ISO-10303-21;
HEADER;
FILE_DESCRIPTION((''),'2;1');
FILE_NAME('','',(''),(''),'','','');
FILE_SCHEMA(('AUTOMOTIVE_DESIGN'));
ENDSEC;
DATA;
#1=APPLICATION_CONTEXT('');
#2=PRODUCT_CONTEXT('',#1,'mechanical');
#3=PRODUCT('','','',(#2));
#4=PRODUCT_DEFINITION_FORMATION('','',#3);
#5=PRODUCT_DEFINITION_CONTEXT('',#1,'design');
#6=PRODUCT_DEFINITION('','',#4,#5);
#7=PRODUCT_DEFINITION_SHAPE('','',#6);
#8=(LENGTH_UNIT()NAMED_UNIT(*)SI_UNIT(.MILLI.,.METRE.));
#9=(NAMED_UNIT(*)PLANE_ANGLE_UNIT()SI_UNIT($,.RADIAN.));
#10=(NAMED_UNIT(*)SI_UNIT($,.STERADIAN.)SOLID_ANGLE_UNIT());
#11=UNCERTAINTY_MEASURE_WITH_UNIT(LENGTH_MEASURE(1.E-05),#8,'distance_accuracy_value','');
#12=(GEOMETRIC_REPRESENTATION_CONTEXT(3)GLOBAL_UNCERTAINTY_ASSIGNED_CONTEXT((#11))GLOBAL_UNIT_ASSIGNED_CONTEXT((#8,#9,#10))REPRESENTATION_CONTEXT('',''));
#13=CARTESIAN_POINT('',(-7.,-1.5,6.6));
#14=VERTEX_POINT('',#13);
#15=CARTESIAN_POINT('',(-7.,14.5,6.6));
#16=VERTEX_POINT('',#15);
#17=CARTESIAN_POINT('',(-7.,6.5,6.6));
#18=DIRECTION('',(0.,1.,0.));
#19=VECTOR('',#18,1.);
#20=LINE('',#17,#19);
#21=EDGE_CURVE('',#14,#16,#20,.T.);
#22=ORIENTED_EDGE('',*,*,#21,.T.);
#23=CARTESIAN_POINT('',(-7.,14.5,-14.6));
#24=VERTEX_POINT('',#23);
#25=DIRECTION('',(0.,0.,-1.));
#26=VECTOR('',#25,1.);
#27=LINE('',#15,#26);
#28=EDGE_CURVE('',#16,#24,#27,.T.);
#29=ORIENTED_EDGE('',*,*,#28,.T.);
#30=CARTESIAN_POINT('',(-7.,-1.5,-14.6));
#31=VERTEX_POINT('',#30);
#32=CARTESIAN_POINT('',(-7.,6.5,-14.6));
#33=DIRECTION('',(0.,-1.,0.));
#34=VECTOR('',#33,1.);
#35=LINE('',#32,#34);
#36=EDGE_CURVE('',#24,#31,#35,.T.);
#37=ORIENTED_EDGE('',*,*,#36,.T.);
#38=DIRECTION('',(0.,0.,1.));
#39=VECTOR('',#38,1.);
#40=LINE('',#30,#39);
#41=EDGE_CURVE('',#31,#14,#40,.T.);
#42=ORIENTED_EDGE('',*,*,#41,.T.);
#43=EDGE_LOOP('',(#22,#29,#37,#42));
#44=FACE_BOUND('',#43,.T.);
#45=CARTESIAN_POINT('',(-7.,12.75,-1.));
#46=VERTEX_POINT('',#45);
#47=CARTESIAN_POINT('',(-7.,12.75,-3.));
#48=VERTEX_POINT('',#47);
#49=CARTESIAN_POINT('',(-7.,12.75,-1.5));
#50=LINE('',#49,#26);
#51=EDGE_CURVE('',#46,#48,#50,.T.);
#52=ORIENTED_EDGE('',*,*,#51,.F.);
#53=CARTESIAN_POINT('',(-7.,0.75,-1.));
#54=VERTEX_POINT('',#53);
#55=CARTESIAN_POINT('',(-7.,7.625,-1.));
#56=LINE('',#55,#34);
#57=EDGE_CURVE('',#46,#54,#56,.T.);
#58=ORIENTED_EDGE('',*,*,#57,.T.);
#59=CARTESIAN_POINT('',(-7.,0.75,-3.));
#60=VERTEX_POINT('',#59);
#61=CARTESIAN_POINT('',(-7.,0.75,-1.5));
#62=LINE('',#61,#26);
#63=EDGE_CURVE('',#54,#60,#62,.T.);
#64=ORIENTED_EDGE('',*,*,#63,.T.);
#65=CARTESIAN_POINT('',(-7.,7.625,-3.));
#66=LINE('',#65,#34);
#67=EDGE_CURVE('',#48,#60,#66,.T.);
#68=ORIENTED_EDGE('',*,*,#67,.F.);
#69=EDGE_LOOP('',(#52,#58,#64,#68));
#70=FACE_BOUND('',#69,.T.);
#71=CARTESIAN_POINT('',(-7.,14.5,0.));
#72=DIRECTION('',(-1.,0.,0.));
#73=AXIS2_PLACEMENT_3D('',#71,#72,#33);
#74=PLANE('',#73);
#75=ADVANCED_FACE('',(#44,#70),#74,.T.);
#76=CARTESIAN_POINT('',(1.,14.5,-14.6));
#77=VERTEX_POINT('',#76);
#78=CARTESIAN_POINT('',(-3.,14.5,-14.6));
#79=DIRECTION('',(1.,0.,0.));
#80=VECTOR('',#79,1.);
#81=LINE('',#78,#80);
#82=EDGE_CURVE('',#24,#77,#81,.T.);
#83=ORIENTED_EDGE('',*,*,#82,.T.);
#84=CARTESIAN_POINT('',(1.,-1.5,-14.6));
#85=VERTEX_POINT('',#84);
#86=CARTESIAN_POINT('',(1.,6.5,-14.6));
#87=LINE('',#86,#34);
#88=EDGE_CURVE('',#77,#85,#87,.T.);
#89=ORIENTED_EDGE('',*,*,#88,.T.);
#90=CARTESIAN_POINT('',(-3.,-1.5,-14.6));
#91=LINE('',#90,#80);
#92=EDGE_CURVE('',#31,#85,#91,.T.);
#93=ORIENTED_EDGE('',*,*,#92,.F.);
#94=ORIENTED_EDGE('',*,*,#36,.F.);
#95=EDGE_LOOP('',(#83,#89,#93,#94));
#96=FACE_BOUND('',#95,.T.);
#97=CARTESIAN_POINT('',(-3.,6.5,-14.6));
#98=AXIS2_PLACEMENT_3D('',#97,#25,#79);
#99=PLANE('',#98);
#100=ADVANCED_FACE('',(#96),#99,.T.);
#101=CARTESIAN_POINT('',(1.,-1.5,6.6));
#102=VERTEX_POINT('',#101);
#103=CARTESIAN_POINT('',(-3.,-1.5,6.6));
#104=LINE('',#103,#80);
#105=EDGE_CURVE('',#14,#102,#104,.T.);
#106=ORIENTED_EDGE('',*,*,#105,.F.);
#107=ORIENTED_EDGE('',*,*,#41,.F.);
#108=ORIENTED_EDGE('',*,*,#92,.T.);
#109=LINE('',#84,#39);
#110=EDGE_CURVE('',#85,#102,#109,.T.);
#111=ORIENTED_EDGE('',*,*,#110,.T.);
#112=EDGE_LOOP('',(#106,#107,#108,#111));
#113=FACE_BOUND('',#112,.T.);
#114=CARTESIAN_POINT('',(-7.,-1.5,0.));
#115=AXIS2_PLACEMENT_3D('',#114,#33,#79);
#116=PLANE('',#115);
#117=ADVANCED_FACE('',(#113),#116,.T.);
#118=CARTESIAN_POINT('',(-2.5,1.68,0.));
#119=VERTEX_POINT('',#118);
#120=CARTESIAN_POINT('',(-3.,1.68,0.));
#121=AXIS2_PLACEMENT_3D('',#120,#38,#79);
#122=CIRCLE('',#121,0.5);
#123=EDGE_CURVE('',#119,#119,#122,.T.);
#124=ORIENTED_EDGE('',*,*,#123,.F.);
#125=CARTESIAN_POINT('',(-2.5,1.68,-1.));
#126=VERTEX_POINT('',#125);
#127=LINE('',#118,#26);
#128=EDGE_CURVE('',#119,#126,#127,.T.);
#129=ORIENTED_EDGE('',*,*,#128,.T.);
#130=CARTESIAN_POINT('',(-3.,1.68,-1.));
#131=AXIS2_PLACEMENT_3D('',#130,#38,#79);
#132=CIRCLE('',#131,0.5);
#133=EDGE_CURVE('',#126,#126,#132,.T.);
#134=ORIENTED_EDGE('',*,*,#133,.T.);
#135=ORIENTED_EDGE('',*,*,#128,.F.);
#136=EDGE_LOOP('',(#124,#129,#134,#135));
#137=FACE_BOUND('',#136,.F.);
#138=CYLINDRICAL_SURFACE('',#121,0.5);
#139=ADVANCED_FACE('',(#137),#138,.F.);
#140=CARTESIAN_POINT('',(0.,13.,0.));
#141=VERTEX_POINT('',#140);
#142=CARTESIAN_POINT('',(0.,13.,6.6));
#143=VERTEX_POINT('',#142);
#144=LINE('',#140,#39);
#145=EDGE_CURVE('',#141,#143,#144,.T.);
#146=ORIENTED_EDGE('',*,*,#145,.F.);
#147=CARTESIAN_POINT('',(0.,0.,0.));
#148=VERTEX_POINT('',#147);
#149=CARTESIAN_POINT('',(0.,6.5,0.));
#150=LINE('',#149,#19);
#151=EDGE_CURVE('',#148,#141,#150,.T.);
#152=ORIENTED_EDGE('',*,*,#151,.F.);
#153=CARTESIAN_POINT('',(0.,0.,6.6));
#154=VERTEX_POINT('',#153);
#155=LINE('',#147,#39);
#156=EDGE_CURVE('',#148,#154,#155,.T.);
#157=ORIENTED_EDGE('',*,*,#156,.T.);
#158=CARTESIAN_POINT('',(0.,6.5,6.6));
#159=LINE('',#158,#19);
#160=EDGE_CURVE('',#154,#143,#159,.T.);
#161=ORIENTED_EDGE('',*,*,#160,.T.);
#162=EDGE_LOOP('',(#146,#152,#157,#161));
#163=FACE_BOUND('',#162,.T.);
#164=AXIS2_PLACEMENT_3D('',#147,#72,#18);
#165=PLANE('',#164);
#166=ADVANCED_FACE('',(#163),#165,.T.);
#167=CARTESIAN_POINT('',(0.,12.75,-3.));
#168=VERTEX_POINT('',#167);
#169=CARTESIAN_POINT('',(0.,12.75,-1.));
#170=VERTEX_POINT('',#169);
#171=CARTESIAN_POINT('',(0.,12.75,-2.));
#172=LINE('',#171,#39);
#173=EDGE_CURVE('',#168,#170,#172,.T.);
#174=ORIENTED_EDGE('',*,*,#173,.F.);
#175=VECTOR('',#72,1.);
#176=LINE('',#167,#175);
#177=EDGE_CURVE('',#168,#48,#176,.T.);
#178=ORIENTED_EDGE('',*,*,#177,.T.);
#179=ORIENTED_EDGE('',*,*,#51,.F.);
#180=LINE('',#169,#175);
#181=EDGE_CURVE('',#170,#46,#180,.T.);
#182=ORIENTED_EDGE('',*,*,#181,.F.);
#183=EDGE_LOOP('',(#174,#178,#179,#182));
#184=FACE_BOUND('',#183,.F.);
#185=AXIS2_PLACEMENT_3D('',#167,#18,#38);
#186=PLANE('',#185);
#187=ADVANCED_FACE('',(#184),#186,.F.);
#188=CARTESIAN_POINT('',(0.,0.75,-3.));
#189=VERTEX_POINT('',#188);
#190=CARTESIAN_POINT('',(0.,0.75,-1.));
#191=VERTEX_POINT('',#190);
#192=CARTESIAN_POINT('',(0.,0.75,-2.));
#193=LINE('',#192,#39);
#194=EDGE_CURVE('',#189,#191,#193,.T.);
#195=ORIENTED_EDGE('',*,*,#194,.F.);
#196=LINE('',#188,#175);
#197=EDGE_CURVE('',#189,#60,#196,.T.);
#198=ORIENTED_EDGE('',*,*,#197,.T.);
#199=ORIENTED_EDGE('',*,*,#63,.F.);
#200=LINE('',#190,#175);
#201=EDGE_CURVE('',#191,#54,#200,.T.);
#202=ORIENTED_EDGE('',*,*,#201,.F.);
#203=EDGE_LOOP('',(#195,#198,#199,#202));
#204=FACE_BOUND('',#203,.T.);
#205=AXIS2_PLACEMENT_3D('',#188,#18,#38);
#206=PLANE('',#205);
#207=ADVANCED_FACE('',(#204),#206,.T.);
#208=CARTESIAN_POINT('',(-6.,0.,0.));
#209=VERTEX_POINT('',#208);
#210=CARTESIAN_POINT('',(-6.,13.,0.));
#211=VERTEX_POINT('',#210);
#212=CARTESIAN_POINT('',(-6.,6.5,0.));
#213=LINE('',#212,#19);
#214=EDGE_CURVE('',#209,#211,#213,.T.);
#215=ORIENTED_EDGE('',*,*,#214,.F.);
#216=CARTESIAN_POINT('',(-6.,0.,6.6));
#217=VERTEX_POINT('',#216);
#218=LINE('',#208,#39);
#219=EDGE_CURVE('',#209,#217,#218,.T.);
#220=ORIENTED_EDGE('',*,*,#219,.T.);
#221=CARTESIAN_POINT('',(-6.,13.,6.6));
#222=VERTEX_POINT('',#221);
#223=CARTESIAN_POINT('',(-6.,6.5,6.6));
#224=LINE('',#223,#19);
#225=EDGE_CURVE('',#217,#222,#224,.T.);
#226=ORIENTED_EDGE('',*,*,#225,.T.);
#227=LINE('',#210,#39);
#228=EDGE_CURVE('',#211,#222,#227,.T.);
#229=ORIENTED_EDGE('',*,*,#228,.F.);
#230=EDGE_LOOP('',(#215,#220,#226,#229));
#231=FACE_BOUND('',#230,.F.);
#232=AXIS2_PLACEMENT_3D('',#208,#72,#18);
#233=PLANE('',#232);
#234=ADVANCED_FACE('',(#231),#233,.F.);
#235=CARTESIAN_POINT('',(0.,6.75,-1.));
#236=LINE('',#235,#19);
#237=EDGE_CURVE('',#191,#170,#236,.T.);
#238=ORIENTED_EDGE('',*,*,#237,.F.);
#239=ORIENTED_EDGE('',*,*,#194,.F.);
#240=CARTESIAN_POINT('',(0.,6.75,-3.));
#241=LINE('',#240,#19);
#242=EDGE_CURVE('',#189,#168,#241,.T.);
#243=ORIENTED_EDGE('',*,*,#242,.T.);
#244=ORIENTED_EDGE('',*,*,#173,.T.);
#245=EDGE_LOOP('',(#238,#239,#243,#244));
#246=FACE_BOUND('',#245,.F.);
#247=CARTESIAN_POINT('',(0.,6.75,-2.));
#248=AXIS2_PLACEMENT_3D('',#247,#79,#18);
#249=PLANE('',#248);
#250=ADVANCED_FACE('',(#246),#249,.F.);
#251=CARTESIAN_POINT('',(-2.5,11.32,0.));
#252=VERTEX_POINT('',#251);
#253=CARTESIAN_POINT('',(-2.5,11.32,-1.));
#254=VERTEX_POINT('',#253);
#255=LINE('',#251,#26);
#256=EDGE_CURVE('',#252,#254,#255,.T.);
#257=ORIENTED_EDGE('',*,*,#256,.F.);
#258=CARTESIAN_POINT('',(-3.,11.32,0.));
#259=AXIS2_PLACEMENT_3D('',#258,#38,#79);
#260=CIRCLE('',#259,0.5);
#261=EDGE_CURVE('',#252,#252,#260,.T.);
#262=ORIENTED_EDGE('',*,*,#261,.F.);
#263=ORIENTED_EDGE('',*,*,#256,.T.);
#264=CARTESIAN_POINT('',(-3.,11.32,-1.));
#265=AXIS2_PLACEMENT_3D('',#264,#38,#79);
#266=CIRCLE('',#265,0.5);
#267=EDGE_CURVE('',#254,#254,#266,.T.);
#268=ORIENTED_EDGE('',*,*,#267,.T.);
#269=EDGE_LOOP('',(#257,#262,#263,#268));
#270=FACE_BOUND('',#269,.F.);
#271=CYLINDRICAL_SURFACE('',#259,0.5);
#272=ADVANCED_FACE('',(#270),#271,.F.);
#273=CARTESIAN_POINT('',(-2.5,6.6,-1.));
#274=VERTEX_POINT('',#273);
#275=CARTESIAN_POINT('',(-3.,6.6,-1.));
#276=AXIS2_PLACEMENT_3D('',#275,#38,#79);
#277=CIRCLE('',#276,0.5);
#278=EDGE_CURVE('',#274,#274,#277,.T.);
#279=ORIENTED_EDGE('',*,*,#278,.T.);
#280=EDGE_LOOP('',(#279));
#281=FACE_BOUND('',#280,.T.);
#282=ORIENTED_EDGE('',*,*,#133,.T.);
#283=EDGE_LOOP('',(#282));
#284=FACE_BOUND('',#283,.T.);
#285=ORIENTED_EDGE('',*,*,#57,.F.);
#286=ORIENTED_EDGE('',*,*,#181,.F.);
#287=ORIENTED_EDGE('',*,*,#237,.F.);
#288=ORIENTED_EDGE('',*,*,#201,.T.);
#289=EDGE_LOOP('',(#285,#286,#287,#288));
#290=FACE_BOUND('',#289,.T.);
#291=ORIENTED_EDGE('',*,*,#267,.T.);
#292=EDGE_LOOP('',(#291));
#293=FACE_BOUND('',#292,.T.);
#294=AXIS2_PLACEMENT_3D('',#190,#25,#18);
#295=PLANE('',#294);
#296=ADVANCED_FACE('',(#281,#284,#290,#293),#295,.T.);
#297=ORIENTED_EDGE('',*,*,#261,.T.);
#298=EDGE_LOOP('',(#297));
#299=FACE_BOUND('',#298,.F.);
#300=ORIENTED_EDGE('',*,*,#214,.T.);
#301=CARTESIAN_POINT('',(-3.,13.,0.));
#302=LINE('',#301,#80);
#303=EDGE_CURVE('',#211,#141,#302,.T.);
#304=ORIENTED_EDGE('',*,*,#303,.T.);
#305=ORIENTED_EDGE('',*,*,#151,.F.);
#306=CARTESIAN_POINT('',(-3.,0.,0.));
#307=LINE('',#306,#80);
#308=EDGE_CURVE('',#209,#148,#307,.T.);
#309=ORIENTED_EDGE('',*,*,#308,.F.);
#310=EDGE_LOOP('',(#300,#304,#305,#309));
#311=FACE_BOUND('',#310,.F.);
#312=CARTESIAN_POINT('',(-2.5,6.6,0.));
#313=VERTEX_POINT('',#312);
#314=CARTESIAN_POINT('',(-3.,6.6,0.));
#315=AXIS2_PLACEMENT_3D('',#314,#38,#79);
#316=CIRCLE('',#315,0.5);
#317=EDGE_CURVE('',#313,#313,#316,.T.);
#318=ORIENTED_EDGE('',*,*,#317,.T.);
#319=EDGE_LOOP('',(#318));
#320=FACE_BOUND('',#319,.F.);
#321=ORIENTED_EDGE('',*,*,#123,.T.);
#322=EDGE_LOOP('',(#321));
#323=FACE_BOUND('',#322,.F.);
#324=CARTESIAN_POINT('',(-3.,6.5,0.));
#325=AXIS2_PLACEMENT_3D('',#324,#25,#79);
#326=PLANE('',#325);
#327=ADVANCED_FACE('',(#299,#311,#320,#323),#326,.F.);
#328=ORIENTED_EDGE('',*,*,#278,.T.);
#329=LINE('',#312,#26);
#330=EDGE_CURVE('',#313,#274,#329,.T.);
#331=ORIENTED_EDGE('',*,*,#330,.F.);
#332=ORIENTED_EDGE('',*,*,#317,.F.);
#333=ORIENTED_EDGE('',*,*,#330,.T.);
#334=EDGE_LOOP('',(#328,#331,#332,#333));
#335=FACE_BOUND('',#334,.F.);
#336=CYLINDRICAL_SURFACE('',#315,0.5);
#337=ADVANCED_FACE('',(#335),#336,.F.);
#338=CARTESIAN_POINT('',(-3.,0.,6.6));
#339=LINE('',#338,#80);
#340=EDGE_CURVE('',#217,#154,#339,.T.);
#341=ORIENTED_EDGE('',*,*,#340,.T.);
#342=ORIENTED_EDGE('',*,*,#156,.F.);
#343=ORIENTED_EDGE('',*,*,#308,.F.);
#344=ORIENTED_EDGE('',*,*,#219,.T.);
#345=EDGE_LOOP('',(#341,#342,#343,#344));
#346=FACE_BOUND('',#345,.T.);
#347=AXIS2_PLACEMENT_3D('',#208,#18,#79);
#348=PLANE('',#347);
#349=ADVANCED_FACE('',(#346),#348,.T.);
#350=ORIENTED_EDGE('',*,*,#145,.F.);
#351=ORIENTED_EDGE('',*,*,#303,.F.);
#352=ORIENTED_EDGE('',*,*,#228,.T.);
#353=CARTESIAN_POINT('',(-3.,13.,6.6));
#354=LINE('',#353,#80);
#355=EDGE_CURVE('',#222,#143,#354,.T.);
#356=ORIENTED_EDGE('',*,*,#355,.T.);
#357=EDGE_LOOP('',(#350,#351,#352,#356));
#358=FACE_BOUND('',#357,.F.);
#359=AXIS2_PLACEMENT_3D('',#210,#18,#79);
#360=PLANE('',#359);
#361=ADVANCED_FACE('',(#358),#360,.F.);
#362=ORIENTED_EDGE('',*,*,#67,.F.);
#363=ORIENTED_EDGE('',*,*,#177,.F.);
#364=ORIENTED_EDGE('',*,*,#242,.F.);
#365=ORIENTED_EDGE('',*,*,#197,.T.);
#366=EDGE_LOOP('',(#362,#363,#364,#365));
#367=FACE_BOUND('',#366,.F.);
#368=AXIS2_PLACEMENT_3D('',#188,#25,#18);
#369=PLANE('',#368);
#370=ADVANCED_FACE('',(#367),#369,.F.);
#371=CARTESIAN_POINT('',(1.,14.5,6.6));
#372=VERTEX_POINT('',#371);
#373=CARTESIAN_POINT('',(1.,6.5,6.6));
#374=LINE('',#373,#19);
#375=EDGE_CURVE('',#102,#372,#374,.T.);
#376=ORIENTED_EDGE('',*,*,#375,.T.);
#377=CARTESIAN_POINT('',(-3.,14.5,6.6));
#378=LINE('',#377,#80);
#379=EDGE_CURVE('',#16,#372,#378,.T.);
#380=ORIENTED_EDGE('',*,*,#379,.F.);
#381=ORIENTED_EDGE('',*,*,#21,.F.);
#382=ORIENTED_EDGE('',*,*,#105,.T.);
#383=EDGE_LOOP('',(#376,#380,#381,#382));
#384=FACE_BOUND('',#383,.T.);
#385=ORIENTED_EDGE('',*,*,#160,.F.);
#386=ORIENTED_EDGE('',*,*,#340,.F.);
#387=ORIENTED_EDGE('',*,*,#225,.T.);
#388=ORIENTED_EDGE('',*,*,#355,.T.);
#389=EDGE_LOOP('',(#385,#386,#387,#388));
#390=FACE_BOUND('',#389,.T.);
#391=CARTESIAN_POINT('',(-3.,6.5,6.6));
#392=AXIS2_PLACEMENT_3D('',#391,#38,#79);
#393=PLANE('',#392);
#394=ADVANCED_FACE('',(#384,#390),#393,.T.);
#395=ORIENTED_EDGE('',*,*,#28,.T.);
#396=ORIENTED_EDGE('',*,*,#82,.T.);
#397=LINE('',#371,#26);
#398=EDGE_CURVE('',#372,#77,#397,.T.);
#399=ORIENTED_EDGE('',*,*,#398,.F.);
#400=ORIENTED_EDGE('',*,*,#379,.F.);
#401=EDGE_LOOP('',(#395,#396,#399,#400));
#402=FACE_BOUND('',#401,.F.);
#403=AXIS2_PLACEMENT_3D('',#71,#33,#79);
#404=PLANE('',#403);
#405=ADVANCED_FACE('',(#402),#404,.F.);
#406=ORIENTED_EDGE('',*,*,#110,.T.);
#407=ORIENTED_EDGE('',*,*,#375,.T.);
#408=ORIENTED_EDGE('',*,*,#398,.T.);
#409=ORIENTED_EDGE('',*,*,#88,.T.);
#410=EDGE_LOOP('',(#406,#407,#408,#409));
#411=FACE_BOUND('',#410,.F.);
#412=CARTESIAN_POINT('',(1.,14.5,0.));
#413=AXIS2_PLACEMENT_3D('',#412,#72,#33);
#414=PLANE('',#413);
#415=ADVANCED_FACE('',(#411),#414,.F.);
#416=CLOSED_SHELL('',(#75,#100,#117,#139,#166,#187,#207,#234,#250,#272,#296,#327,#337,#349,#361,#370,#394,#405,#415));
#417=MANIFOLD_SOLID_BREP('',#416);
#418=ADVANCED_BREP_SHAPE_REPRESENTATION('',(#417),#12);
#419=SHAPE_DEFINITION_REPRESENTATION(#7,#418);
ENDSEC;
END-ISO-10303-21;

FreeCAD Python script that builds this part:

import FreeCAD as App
import Part
import Sketcher

V = App.Vector
Q = App.Units.Quantity

doc = App.newDocument("Part")
body = doc.addObject("PartDesign::Body", "Body")

sketch1 = doc.addObject("Sketcher::SketchObject", "Sketch")
body.addObject(sketch1)
sketch1.AttachmentSupport = (doc.XY_Plane, [""])
sketch1.MapMode = "FlatFace"
sketch1.addGeometry([
    Part.LineSegment(V(-7, 14.5, 0), V(-7, -1.5, 0)),
    Part.LineSegment(V(-7, -1.5, 0), V(1, -1.5, 0)),
    Part.LineSegment(V(1, -1.5, 0), V(1, 14.5, 0)),
    Part.LineSegment(V(1, 14.5, 0), V(-7, 14.5, 0)),
    Part.LineSegment(V(0, 0, 0), V(-6, 0, 0)),
    Part.LineSegment(V(-6, 0, 0), V(-6, 13, 0)),
    Part.LineSegment(V(-6, 13, 0), V(0, 13, 0)),
    Part.LineSegment(V(0, 13, 0), V(0, 0, 0)),
], False)
sketch1.addConstraint([
    Sketcher.Constraint("Coincident", 0, 2, 1, 1),
    Sketcher.Constraint("Coincident", 1, 2, 2, 1),
    Sketcher.Constraint("Coincident", 2, 2, 3, 1),
    Sketcher.Constraint("Coincident", 3, 2, 0, 1),
    Sketcher.Constraint("Coincident", 4, 2, 5, 1),
    Sketcher.Constraint("Coincident", 5, 2, 6, 1),
    Sketcher.Constraint("Coincident", 6, 2, 7, 1),
    Sketcher.Constraint("Coincident", 7, 2, 4, 1),
    Sketcher.Constraint("Vertical", 0),
    Sketcher.Constraint("Horizontal", 1),
    Sketcher.Constraint("Vertical", 2),
    Sketcher.Constraint("Horizontal", 3),
    Sketcher.Constraint("Horizontal", 4),
    Sketcher.Constraint("Vertical", 5),
    Sketcher.Constraint("Horizontal", 6),
    Sketcher.Constraint("Vertical", 7),
    Sketcher.Constraint("Coincident", 7, 2, -1, 1),
    Sketcher.Constraint("DistanceX", 1, 1, 1, 2, Q("8 mm")),
    Sketcher.Constraint("DistanceX", 4, 2, 4, 1, Q("6 mm")),
    Sketcher.Constraint("DistanceY", 0, 2, 0, 1, Q("16 mm")),
    Sketcher.Constraint("DistanceY", 5, 1, 5, 2, Q("13 mm")),
    Sketcher.Constraint("DistanceX", 0, 2, -1, 1, Q("7 mm")),
    Sketcher.Constraint("DistanceY", 0, 2, -1, 1, Q("1.5 mm")),
])
pad1 = doc.addObject("PartDesign::Pad", "Pad")
body.addObject(pad1)
pad1.Profile = sketch1
pad1.Length = 6.6

sketch2 = doc.addObject("Sketcher::SketchObject", "Sketch001")
body.addObject(sketch2)
sketch2.AttachmentSupport = (doc.XY_Plane, [""])
sketch2.MapMode = "FlatFace"
sketch2.addGeometry([
    Part.LineSegment(V(-7, -1.5, 0), V(-7, 14.5, 0)),
    Part.LineSegment(V(-7, 14.5, 0), V(1, 14.5, 0)),
    Part.LineSegment(V(1, 14.5, 0), V(1, -1.5, 0)),
    Part.LineSegment(V(1, -1.5, 0), V(-7, -1.5, 0)),
], False)
sketch2.addConstraint([
    Sketcher.Constraint("Coincident", 0, 2, 1, 1),
    Sketcher.Constraint("Coincident", 1, 2, 2, 1),
    Sketcher.Constraint("Coincident", 2, 2, 3, 1),
    Sketcher.Constraint("Coincident", 3, 2, 0, 1),
    Sketcher.Constraint("Vertical", 0),
    Sketcher.Constraint("Horizontal", 1),
    Sketcher.Constraint("Vertical", 2),
    Sketcher.Constraint("Horizontal", 3),
    Sketcher.Constraint("DistanceX", 1, 1, 1, 2, Q("8 mm")),
    Sketcher.Constraint("DistanceY", 0, 1, 0, 2, Q("16 mm")),
    Sketcher.Constraint("DistanceX", 0, 2, -1, 1, Q("7 mm")),
    Sketcher.Constraint("DistanceY", -1, 1, 0, 2, Q("14.5 mm")),
])
pad2 = doc.addObject("PartDesign::Pad", "Pad001")
body.addObject(pad2)
pad2.Profile = sketch2
pad2.Length = 14.6
pad2.Reversed = True

sketch3 = doc.addObject("Sketcher::SketchObject", "Sketch002")
body.addObject(sketch3)
sketch3.AttachmentSupport = (doc.XY_Plane, [""])
sketch3.MapMode = "FlatFace"
sketch3.addGeometry([
    Part.Circle(V(-3, 11.32, 0), V(0, 0, 1), 0.5),
    Part.Circle(V(-3, 6.6, 0), V(0, 0, 1), 0.5),
    Part.Circle(V(-3, 1.68, 0), V(0, 0, 1), 0.5),
], False)
sketch3.addConstraint([
    Sketcher.Constraint("Equal", 0, 1),
    Sketcher.Constraint("Equal", 1, 2),
    Sketcher.Constraint("Vertical", 0, 3, 1, 3),
    Sketcher.Constraint("Vertical", 1, 3, 2, 3),
    Sketcher.Constraint("Diameter", 0, Q("1 mm")),
    Sketcher.Constraint("DistanceX", 0, 3, -1, 1, Q("3 mm")),
    Sketcher.Constraint("DistanceY", -1, 1, 1, 3, Q("6.6 mm")),
    Sketcher.Constraint("DistanceY", -1, 1, 0, 3, Q("11.32 mm")),
    Sketcher.Constraint("DistanceY", -1, 1, 2, 3, Q("1.68 mm")),
])
pocket1 = doc.addObject("PartDesign::Pocket", "Pocket")
body.addObject(pocket1)
pocket1.Profile = sketch3
pocket1.Length = 3

sketch4 = doc.addObject("Sketcher::SketchObject", "Sketch003")
body.addObject(sketch4)
sketch4.AttachmentSupport = (doc.YZ_Plane, [""])
sketch4.MapMode = "FlatFace"
sketch4.addGeometry([
    Part.LineSegment(V(0.75, -1, 0), V(0.75, -3, 0)),
    Part.LineSegment(V(0.75, -3, 0), V(12.75, -3, 0)),
    Part.LineSegment(V(12.75, -3, 0), V(12.75, -1, 0)),
    Part.LineSegment(V(12.75, -1, 0), V(0.75, -1, 0)),
], False)
sketch4.addConstraint([
    Sketcher.Constraint("Coincident", 0, 2, 1, 1),
    Sketcher.Constraint("Coincident", 1, 2, 2, 1),
    Sketcher.Constraint("Coincident", 2, 2, 3, 1),
    Sketcher.Constraint("Coincident", 3, 2, 0, 1),
    Sketcher.Constraint("Vertical", 0),
    Sketcher.Constraint("Horizontal", 1),
    Sketcher.Constraint("Vertical", 2),
    Sketcher.Constraint("Horizontal", 3),
    Sketcher.Constraint("DistanceX", 1, 1, 1, 2, Q("12 mm")),
    Sketcher.Constraint("DistanceY", 0, 2, 0, 1, Q("2 mm")),
    Sketcher.Constraint("DistanceY", 0, 2, -1, 1, Q("3 mm")),
    Sketcher.Constraint("DistanceX", -1, 1, 0, 2, Q("0.75 mm")),
])
pocket2 = doc.addObject("PartDesign::Pocket", "Pocket001")
body.addObject(pocket2)
pocket2.Profile = sketch4
pocket2.Length = 12

doc.recompute()
